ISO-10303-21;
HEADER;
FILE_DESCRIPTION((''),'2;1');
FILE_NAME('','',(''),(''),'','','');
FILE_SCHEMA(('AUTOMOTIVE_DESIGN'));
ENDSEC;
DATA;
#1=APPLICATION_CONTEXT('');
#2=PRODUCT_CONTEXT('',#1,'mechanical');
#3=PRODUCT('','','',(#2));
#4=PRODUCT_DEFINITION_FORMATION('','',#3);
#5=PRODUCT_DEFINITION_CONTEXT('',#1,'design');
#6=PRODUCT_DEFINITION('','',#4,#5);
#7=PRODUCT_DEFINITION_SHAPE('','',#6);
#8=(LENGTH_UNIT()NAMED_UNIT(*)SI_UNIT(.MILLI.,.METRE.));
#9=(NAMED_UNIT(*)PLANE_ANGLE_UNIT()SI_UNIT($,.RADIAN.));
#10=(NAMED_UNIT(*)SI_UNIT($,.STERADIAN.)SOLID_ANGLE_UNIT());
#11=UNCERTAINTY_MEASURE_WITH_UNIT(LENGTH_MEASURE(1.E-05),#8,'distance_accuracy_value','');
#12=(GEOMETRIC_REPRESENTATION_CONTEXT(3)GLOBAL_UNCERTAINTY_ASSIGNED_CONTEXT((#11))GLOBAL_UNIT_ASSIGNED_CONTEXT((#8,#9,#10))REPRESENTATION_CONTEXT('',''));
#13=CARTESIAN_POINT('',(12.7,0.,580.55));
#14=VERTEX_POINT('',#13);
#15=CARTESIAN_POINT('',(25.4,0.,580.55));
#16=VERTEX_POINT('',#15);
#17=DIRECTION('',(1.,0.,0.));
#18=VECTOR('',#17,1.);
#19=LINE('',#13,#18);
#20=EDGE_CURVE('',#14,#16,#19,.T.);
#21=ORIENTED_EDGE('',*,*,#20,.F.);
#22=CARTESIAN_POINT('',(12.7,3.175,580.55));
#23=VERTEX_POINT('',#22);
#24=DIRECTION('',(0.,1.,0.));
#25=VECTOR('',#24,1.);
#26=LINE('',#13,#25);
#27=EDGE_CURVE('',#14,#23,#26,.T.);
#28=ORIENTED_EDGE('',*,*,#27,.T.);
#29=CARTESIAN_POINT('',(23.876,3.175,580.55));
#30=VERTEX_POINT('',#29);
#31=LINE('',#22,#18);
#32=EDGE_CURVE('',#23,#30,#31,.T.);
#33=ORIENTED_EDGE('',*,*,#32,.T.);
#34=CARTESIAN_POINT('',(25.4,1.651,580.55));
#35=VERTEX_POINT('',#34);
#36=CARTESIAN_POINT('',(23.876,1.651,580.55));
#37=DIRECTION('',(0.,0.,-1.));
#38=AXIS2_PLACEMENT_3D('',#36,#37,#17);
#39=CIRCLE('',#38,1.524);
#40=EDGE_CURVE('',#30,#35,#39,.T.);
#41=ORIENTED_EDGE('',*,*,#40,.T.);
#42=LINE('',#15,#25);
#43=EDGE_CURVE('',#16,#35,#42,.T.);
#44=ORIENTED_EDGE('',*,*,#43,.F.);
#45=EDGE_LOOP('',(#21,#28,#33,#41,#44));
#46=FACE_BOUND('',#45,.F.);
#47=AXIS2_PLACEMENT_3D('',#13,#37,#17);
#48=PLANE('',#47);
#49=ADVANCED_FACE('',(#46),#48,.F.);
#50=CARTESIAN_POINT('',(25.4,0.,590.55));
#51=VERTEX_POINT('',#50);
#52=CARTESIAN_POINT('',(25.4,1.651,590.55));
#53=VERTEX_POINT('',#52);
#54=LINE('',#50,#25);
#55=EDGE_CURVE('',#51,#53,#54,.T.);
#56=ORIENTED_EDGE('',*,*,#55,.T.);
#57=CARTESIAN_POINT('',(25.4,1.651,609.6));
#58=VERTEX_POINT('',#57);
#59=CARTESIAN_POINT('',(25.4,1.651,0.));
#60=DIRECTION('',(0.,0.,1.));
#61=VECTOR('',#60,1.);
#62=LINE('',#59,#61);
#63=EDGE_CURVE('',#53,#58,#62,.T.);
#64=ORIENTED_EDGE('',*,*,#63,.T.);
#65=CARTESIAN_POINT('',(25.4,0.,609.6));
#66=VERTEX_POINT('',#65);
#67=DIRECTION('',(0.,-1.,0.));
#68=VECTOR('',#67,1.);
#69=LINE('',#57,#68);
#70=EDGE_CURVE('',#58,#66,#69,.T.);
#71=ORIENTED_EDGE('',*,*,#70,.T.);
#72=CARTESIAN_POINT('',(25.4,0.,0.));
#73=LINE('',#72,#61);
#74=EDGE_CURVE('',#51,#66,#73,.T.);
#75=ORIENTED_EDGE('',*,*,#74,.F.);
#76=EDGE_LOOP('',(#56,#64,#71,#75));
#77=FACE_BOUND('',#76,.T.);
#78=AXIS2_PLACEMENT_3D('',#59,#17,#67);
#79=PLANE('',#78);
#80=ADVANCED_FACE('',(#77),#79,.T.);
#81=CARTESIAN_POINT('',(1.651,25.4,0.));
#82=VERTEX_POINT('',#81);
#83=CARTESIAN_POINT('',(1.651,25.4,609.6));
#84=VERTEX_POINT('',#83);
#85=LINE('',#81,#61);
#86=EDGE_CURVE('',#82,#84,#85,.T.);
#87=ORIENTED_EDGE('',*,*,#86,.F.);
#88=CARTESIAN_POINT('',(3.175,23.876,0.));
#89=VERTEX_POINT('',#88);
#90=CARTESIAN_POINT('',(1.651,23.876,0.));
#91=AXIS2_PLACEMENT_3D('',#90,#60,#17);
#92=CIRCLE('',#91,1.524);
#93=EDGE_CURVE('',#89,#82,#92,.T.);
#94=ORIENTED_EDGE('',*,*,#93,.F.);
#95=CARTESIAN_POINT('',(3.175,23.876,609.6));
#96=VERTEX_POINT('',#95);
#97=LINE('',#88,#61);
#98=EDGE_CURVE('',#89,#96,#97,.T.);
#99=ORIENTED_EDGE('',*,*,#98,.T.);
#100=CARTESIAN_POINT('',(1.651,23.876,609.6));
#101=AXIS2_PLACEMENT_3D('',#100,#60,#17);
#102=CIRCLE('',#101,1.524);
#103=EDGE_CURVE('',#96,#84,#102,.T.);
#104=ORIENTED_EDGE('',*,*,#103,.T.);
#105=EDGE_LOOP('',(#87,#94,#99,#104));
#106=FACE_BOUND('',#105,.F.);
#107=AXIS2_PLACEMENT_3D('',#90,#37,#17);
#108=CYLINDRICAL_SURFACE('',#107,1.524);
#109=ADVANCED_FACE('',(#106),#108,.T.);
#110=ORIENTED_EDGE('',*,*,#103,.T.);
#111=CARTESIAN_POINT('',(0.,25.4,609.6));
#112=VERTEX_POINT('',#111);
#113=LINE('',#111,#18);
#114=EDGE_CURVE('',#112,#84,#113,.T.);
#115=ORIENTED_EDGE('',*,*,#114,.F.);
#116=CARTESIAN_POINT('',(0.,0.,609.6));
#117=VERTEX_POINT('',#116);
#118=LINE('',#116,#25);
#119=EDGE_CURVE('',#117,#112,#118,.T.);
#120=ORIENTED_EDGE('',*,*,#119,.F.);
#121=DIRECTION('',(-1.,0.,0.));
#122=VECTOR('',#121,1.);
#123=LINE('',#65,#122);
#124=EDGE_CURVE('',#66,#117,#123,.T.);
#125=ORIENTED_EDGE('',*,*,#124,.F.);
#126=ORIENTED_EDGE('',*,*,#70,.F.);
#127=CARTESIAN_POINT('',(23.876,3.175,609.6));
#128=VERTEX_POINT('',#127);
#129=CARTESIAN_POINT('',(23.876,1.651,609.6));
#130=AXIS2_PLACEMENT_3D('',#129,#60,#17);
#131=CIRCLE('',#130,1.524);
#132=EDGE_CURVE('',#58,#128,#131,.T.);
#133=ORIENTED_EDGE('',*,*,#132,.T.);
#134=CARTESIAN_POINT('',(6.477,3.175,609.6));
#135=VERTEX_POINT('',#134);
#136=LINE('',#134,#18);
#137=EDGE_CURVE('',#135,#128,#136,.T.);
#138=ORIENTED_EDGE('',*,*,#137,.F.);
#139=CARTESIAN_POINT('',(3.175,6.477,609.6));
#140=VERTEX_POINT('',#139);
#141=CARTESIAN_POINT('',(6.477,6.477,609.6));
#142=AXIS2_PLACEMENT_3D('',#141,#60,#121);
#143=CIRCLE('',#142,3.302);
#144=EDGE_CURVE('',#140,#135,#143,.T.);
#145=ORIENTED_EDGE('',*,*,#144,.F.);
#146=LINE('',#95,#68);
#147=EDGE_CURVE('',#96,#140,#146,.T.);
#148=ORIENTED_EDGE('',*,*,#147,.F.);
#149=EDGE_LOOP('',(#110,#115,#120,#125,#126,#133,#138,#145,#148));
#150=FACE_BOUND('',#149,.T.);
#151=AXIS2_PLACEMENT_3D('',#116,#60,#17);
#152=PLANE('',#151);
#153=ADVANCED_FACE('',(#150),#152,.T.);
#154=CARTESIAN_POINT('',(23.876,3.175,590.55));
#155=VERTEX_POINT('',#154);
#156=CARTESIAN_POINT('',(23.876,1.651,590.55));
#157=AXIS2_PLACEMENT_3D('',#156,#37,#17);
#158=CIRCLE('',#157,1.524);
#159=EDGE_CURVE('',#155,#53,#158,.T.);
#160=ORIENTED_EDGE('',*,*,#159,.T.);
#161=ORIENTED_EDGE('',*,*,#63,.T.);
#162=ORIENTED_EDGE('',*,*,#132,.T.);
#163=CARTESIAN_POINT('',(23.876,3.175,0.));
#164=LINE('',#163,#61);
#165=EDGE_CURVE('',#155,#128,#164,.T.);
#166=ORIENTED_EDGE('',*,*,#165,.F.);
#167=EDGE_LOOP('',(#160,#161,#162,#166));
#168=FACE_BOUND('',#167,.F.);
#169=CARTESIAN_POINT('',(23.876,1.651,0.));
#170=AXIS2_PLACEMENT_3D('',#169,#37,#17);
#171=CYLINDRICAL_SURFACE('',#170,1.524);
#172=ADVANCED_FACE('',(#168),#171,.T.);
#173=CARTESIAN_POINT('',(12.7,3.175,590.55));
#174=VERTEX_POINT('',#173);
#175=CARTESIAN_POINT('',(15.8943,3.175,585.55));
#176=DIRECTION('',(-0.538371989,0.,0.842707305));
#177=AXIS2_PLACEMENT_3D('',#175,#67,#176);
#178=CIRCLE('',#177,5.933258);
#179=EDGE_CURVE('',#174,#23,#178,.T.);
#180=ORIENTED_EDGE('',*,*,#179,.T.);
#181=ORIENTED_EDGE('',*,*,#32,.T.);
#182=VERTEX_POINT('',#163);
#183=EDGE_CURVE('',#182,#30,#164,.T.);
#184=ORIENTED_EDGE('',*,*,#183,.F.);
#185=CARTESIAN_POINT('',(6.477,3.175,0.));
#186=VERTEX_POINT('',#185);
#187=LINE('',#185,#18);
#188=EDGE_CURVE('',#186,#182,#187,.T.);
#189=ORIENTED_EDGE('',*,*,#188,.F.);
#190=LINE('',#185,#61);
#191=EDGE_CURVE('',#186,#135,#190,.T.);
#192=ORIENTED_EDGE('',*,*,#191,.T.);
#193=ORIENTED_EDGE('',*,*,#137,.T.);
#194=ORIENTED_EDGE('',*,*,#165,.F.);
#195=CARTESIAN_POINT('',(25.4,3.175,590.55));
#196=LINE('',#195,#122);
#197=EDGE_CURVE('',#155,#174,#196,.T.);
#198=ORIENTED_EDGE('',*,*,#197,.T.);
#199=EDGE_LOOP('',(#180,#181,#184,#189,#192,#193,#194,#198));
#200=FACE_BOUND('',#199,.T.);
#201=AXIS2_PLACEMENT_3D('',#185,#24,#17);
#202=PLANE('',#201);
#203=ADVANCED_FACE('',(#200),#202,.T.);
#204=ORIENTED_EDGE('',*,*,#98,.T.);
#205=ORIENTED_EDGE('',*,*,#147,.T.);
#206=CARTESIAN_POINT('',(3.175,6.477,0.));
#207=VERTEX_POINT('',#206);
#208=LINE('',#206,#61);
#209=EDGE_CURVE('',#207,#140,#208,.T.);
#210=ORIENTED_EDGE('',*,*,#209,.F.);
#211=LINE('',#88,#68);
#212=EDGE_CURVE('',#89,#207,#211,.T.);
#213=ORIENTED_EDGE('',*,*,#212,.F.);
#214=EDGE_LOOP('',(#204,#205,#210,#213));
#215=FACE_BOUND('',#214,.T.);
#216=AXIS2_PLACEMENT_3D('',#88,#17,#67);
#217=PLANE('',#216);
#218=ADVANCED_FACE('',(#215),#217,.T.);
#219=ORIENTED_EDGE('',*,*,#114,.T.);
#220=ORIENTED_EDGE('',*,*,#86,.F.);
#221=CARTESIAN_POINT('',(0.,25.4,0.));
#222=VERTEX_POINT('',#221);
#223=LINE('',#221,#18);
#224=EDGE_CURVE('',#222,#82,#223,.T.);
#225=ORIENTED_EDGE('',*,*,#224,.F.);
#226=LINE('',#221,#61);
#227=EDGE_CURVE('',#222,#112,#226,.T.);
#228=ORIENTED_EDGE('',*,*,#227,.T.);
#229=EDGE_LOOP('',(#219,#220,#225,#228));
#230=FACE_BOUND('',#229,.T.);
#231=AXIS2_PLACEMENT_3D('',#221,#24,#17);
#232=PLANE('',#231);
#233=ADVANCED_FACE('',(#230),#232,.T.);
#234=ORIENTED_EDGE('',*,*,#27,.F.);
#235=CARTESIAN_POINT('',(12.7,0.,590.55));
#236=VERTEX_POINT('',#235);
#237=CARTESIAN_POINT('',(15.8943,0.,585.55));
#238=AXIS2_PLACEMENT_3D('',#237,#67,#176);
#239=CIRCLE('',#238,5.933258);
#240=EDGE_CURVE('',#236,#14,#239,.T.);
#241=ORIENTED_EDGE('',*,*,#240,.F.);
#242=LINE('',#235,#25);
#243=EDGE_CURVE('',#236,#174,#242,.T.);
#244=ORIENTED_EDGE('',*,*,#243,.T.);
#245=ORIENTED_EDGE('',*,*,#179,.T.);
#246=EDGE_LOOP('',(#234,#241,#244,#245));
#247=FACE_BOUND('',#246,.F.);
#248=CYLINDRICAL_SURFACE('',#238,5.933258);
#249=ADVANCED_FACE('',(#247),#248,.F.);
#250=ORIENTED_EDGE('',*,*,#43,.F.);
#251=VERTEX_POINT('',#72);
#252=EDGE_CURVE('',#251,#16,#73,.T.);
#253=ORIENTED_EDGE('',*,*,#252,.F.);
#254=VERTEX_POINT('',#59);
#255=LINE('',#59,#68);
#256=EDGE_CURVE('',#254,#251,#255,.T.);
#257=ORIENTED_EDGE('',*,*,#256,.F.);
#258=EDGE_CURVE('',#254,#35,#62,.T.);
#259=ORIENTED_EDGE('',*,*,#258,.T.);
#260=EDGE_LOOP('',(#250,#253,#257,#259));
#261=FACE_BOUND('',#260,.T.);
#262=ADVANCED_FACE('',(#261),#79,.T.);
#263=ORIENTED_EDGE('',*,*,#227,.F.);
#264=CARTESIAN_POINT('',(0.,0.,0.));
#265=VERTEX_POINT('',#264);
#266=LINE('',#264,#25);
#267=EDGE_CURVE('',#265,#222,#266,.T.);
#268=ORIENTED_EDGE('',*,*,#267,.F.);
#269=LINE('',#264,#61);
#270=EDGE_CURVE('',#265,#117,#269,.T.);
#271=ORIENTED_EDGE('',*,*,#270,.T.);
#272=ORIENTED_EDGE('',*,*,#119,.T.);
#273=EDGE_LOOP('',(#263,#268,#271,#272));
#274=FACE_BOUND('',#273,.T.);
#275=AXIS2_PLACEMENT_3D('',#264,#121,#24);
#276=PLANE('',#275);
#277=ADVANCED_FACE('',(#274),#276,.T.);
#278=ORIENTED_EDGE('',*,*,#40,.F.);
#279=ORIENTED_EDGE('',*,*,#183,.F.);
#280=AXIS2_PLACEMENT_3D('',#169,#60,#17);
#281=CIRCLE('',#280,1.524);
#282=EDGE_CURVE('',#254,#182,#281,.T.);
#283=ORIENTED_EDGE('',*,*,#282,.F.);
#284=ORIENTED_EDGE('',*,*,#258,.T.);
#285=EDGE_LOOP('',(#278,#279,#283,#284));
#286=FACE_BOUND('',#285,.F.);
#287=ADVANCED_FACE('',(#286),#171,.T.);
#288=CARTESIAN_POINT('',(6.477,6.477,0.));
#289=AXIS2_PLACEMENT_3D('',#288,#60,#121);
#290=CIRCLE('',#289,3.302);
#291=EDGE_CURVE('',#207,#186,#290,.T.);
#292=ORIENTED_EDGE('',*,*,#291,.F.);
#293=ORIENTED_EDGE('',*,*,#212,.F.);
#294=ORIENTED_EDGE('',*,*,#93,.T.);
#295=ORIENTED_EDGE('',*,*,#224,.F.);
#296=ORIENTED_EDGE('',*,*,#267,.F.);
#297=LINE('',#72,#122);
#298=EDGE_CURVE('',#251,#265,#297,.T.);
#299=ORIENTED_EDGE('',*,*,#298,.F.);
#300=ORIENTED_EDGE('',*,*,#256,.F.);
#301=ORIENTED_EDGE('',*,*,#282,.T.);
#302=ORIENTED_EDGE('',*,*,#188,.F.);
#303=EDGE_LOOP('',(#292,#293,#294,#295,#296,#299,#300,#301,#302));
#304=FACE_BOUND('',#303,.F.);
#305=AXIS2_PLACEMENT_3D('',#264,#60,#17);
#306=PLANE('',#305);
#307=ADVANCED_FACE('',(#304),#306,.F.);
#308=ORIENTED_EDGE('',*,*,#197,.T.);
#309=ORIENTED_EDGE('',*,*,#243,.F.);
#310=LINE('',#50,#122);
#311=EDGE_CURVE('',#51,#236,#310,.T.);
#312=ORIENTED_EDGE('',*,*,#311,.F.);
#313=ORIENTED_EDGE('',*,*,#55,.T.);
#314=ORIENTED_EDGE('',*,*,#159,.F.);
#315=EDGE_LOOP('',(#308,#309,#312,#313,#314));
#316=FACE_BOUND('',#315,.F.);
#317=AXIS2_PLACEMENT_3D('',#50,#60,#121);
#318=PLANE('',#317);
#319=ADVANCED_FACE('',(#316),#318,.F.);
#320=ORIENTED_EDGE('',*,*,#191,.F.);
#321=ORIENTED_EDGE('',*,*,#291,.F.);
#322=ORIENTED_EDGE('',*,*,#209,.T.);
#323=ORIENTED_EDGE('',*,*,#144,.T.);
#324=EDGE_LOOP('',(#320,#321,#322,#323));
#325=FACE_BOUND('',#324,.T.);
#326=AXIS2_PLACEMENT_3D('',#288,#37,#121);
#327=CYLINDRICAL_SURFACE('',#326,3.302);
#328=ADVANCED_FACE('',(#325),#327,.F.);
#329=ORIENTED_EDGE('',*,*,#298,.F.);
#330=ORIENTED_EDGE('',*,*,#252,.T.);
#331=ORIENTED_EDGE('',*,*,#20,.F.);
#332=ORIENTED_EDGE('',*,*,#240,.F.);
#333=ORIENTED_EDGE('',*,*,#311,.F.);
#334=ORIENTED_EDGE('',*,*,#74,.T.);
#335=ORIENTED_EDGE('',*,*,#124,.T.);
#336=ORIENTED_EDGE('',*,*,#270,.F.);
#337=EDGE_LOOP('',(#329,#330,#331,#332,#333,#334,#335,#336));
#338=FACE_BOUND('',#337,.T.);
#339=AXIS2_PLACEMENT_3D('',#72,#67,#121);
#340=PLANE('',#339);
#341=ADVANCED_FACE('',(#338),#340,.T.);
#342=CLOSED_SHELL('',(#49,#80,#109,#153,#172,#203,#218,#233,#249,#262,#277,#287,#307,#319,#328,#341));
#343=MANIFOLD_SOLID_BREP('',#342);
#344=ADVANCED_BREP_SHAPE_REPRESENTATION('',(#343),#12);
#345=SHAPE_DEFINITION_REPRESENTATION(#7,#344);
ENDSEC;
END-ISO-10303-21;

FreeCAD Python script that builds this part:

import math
import FreeCAD as App
import Part
import Sketcher
from FreeCAD import Vector
Q = App.Units.Quantity

doc = App.newDocument("Part")
body = doc.addObject("PartDesign::Body", "Body")

# Sketch on XY plane
sketch1 = body.newObject("Sketcher::SketchObject", "Sketch")
sketch1.AttachmentSupport = (doc.getObject("XY_Plane"), [""])
sketch1.MapMode = "FlatFace"
sketch1.addGeometry([
    Part.LineSegment(Vector(0, 0, 0), Vector(25.4, 0, 0)),  # 0
    Part.LineSegment(Vector(25.4, 0, 0), Vector(25.4, 1.7, 0)),  # 1
    Part.ArcOfCircle(Part.Circle(Vector(23.9, 1.7, 0), Vector(0, 0, 1), 1.5), math.radians(0), math.radians(90)),  # 2
    Part.LineSegment(Vector(23.9, 3.2, 0), Vector(6.5, 3.2, 0)),  # 3
    Part.ArcOfCircle(Part.Circle(Vector(6.5, 6.5, 0), Vector(0, 0, 1), 3.3), math.radians(180), math.radians(270)),  # 4
    Part.LineSegment(Vector(3.2, 6.5, 0), Vector(3.2, 23.9, 0)),  # 5
    Part.ArcOfCircle(Part.Circle(Vector(1.7, 23.9, 0), Vector(0, 0, 1), 1.5), math.radians(0), math.radians(90)),  # 6
    Part.LineSegment(Vector(1.7, 25.4, 0), Vector(0, 25.4, 0)),  # 7
    Part.LineSegment(Vector(0, 25.4, 0), Vector(0, 0, 0)),  # 8
], False)
sketch1.addConstraint([
    Sketcher.Constraint("Coincident", 0, 2, 1, 1),
    Sketcher.Constraint("Tangent", 1, 2, 2, 1),
    Sketcher.Constraint("Tangent", 2, 2, 3, 1),
    Sketcher.Constraint("Tangent", 3, 2, 4, 2),
    Sketcher.Constraint("Tangent", 4, 1, 5, 1),
    Sketcher.Constraint("Tangent", 5, 2, 6, 1),
    Sketcher.Constraint("Tangent", 6, 2, 7, 1),
    Sketcher.Constraint("Coincident", 7, 2, 8, 1),
    Sketcher.Constraint("Coincident", 8, 2, 0, 1),
    Sketcher.Constraint("Horizontal", 0),
    Sketcher.Constraint("Vertical", 1),
    Sketcher.Constraint("Horizontal", 3),
    Sketcher.Constraint("Vertical", 5),
    Sketcher.Constraint("Horizontal", 7),
    Sketcher.Constraint("Vertical", 8),
    Sketcher.Constraint("Coincident", 8, 2, -1, 1),
    Sketcher.Constraint("Equal", 2, 6),
    Sketcher.Constraint("Equal", 7, 1),
    Sketcher.Constraint("Equal", 3, 5),
    Sketcher.Constraint("DistanceX", 0, 1, 0, 2, Q("1 in")),
    Sketcher.Constraint("Radius", 2, Q("0.06 in")),
    Sketcher.Constraint("Radius", 4, Q("0.13 in")),
    Sketcher.Constraint("DistanceY", -1, 1, 2, 2, Q("0.125 in")),
])
pad1 = body.newObject("PartDesign::Pad", "Pad")
pad1.Profile = sketch1
pad1.Length = Q("24 in")

# Sketch on XZ plane
sketch2 = body.newObject("Sketcher::SketchObject", "Sketch001")
sketch2.AttachmentSupport = (doc.getObject("XZ_Plane"), [""])
sketch2.MapMode = "FlatFace"
sketch2.addGeometry([
    Part.LineSegment(Vector(25, 581, 0), Vector(25, 591, 0)),
    Part.LineSegment(Vector(25, 591, 0), Vector(13, 591, 0)),
    Part.ArcOfCircle(Part.Circle(Vector(16, 586, 0), Vector(0, 0, 1), 6), math.radians(123), math.radians(237)),
    Part.LineSegment(Vector(13, 581, 0), Vector(25, 581, 0)),
], False)
sketch2.addConstraint([
    Sketcher.Constraint("Coincident", 0, 2, 1, 1),
    Sketcher.Constraint("Coincident", 1, 2, 2, 1),
    Sketcher.Constraint("Coincident", 2, 2, 3, 1),
    Sketcher.Constraint("Coincident", 3, 2, 0, 1),
    Sketcher.Constraint("Vertical", 0),
    Sketcher.Constraint("Horizontal", 1),
    Sketcher.Constraint("Horizontal", 3),
    Sketcher.Constraint("Vertical", 1, 2, 2, 2),
    Sketcher.Constraint("DistanceX", 1, 2, 1, 1, Q("0.5 in")),
    Sketcher.Constraint("DistanceX", -1, 1, 1, 2, Q("0.5 in")),
    Sketcher.Constraint("DistanceY", 0, 1, 0, 2, Q("0.3937 in")),
    Sketcher.Constraint("Radius", 2, Q("0.2336 in")),
    Sketcher.Constraint("DistanceY", -1, 1, 0, 2, Q("23.25 in")),
])
pocket1 = body.newObject("PartDesign::Pocket", "Pocket")
pocket1.Profile = sketch2
pocket1.Length = Q("0.125 in")

doc.recompute()
